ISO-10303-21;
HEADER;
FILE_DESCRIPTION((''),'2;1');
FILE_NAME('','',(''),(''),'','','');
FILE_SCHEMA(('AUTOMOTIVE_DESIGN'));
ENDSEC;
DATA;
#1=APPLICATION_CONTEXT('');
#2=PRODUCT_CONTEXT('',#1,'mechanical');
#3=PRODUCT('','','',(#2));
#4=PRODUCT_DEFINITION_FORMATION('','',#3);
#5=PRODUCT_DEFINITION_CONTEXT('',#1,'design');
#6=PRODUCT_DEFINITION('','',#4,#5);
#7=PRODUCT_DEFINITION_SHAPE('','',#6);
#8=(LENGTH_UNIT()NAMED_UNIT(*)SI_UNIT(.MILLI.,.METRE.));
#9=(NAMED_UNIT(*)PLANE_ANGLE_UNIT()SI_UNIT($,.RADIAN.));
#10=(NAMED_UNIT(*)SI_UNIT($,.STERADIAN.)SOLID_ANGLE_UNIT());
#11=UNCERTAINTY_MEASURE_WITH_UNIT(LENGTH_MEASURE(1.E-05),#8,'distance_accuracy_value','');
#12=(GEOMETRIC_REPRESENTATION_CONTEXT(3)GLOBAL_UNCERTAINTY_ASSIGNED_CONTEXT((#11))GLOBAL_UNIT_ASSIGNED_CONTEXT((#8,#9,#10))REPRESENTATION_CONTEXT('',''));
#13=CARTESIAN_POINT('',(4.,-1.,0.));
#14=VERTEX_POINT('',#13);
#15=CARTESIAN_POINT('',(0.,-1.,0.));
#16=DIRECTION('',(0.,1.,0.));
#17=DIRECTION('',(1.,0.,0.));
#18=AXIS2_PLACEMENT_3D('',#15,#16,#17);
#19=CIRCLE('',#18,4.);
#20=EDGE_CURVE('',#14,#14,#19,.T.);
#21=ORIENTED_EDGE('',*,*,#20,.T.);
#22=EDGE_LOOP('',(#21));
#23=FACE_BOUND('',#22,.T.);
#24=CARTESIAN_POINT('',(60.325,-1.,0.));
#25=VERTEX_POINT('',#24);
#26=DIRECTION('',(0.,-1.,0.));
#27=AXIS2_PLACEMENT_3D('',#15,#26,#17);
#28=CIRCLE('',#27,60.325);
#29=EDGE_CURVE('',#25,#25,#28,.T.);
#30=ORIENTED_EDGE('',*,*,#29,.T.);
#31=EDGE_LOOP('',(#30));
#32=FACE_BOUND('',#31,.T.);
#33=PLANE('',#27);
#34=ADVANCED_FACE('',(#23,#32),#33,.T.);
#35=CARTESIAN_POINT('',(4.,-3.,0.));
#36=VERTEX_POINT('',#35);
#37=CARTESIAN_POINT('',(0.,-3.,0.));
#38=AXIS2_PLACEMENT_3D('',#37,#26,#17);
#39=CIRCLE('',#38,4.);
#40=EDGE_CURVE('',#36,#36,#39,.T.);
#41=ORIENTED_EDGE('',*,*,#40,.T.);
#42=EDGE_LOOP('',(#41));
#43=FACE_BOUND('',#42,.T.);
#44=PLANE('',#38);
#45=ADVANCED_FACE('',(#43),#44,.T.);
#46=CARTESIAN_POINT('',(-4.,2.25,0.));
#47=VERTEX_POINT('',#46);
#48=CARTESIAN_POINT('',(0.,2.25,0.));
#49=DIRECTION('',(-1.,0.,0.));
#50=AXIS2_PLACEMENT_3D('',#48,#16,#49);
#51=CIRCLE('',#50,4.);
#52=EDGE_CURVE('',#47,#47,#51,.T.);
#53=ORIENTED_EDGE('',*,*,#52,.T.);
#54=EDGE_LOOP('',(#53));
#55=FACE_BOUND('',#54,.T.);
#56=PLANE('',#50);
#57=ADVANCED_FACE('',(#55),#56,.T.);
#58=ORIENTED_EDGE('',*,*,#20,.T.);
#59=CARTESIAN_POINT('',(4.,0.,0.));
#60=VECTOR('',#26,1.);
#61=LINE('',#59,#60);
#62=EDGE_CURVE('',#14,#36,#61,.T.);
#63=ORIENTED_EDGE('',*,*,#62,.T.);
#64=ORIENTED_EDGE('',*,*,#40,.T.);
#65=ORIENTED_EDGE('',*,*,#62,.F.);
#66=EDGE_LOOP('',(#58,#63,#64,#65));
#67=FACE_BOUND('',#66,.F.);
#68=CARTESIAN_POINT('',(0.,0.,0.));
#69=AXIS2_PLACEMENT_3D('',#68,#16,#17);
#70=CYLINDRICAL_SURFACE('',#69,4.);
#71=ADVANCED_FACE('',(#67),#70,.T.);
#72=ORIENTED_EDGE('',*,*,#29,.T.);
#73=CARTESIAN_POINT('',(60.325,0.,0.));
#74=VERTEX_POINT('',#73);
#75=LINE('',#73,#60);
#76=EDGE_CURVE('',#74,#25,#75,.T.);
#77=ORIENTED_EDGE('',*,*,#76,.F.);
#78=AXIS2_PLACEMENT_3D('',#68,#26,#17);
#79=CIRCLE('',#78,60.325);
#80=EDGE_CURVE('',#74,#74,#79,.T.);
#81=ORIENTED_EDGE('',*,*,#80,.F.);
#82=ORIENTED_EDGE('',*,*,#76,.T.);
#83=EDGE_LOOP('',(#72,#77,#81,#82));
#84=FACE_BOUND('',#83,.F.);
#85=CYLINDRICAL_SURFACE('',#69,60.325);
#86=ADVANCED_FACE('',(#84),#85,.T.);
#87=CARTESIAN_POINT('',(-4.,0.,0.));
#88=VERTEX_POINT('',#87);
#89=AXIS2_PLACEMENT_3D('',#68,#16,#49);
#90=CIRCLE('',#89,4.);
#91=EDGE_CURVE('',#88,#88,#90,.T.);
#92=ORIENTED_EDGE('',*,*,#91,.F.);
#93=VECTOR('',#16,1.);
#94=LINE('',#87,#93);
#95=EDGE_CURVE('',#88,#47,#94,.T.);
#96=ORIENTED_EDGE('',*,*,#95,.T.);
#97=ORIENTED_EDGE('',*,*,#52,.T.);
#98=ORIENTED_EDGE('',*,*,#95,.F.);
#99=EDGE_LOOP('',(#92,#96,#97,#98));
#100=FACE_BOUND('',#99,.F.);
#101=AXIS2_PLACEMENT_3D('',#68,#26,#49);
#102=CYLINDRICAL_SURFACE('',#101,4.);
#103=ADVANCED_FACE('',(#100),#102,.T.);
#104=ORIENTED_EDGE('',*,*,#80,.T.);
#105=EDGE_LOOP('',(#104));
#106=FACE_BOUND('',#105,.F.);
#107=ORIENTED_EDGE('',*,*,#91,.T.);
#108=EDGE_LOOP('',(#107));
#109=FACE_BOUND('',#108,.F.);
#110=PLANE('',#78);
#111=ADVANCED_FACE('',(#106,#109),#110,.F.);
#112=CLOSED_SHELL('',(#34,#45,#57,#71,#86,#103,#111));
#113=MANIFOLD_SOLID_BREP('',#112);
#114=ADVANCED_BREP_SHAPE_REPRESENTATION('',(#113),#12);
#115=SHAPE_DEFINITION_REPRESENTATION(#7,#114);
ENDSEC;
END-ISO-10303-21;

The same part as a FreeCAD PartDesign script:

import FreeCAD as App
import Part
import Sketcher

V = App.Vector
Q = App.Units.Quantity

doc = App.newDocument("Part")
params = doc.addObject("Spreadsheet::Sheet", "Params")
for row, (alias, value) in enumerate([
    ("sketch1_diameter", "8 mm"),
    ("pad1_length", "3 mm"),
    ("sketch2_diameter", "120.65 mm"),
    ("pad2_length", "1 mm"),
    ("sketch3_diameter", "8 mm"),
    ("pad3_length", "2.25 mm"),
], start=1):
    params.set(f"A{row}", alias)
    params.set(f"B{row}", "=" + value)
    params.setAlias(f"B{row}", alias)

body = doc.addObject("PartDesign::Body", "Body")

# Sketch on XZ plane
sketch1 = doc.addObject("Sketcher::SketchObject", "Sketch")
body.addObject(sketch1)
sketch1.AttachmentSupport = (doc.XZ_Plane, [""])
sketch1.MapMode = "FlatFace"
sketch1.addGeometry(Part.Circle(V(0, 0, 0), V(0, 0, 1), 4), False)
sketch1.addConstraint([
    Sketcher.Constraint("Coincident", 0, 3, -1, 1),
    Sketcher.Constraint("Diameter", 0, Q("8 mm")),
])
sketch1.setExpression("Constraints[1]", "Params.sketch1_diameter")
pad1 = doc.addObject("PartDesign::Pad", "Pad")
body.addObject(pad1)
pad1.Profile = sketch1
pad1.setExpression("Length", "Params.pad1_length")

# Sketch on XZ plane
sketch2 = doc.addObject("Sketcher::SketchObject", "Sketch001")
body.addObject(sketch2)
sketch2.AttachmentSupport = (doc.XZ_Plane, [""])
sketch2.MapMode = "FlatFace"
sketch2.addGeometry(Part.Circle(V(0, 0, 0), V(0, 0, 1), 60.325), False)
sketch2.addConstraint([
    Sketcher.Constraint("Coincident", 0, 3, -1, 1),
    Sketcher.Constraint("Diameter", 0, Q("120.65 mm")),
])
sketch2.setExpression("Constraints[1]", "Params.sketch2_diameter")
pad2 = doc.addObject("PartDesign::Pad", "Pad001")
body.addObject(pad2)
pad2.Profile = sketch2
pad2.setExpression("Length", "Params.pad2_length")

# Sketch on XZ plane
sketch3 = doc.addObject("Sketcher::SketchObject", "Sketch002")
body.addObject(sketch3)
sketch3.AttachmentSupport = (doc.XZ_Plane, [""])
sketch3.MapMode = "FlatFace"
sketch3.addGeometry(Part.Circle(V(0, 0, 0), V(0, 0, 1), 4), False)
sketch3.addConstraint([
    Sketcher.Constraint("Coincident", 0, 3, -1, 1),
    Sketcher.Constraint("Diameter", 0, Q("8 mm")),
])
sketch3.setExpression("Constraints[1]", "Params.sketch3_diameter")
pad3 = doc.addObject("PartDesign::Pad", "Pad002")
body.addObject(pad3)
pad3.Profile = sketch3
pad3.setExpression("Length", "Params.pad3_length")
pad3.Reversed = True

doc.recompute()
